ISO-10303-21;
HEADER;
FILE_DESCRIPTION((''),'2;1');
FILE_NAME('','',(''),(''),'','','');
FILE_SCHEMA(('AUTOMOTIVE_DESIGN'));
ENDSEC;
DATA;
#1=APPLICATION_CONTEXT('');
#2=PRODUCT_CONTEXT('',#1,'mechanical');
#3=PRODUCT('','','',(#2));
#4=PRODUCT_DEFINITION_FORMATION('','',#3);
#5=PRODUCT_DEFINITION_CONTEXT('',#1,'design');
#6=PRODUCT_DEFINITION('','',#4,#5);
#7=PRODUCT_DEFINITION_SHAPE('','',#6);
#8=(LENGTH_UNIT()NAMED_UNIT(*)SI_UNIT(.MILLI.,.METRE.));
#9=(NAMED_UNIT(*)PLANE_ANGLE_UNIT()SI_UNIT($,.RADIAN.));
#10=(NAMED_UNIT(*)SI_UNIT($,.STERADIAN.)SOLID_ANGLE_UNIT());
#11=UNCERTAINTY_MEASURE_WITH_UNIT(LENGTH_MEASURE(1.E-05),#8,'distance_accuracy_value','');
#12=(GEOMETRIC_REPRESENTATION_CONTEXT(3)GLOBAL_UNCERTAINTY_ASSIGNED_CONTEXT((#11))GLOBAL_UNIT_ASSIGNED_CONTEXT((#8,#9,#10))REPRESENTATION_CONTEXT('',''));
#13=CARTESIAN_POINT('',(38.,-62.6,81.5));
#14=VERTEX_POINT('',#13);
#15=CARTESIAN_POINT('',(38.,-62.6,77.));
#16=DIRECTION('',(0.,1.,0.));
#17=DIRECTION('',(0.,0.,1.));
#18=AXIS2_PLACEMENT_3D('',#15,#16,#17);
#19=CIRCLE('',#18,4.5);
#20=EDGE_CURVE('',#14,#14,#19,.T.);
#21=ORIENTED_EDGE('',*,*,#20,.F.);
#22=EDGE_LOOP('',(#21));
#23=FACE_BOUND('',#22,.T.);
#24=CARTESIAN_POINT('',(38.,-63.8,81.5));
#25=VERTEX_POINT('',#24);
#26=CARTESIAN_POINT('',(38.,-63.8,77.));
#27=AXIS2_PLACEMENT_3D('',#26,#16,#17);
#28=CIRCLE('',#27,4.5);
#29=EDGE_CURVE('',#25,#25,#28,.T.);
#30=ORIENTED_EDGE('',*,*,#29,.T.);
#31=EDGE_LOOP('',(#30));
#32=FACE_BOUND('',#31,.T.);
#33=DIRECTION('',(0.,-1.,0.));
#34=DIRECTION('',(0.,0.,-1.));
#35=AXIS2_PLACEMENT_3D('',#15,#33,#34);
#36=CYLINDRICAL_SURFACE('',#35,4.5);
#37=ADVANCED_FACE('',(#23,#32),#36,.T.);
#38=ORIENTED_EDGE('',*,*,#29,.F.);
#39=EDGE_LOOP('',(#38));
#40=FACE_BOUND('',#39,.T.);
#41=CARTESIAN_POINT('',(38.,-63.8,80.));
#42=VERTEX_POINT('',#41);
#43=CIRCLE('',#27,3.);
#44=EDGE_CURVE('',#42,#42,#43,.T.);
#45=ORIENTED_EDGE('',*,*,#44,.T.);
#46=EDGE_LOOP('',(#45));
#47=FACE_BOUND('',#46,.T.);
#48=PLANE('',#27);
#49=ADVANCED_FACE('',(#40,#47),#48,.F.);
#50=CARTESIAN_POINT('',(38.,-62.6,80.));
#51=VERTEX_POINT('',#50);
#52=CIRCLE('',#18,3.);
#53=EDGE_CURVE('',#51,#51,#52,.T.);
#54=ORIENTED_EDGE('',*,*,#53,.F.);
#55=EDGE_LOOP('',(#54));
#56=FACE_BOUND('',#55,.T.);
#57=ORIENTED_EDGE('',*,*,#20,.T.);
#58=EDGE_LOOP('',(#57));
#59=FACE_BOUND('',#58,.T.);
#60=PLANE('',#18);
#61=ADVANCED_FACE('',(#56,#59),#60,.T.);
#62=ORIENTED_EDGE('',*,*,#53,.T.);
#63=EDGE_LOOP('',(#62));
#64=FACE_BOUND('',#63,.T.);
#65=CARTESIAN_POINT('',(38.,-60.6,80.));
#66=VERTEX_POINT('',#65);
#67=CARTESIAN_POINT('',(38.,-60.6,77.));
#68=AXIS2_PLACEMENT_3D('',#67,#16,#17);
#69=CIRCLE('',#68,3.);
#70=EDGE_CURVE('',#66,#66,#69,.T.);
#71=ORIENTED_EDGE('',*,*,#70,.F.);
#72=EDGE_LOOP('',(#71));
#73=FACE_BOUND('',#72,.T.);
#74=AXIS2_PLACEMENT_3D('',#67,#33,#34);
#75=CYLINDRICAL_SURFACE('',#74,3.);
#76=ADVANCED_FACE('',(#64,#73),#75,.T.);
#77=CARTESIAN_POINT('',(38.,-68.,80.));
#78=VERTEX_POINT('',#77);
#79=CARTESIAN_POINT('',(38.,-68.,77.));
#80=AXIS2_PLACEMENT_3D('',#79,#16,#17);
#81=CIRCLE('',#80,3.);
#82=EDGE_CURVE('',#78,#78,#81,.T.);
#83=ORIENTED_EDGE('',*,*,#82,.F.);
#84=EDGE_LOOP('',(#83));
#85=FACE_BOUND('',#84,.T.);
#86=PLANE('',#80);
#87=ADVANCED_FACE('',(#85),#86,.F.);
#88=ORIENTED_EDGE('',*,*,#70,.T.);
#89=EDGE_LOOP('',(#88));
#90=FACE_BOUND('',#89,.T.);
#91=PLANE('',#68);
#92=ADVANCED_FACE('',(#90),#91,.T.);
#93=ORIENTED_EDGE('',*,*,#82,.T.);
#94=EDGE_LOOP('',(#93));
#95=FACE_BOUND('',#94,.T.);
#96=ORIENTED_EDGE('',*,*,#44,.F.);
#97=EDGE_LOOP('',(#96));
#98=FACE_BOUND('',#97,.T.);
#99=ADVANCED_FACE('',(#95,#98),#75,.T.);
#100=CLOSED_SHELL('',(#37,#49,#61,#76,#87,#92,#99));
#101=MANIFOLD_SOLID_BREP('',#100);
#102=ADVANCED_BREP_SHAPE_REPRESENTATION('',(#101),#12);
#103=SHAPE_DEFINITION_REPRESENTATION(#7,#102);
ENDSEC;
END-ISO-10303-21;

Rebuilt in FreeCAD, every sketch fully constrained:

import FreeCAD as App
import Part
import Sketcher

doc = App.newDocument("Part")
body = doc.addObject("PartDesign::Body", "Body")

# Sketch on XZ plane
sketch1 = body.newObject("Sketcher::SketchObject", "Sketch")
sketch1.AttachmentSupport = (doc.getObject("XZ_Plane"), [""])
sketch1.MapMode = "FlatFace"
sketch1.AttachmentOffset = App.Placement(App.Vector(0, 0, 68), App.Rotation())
sketch1.addGeometry(Part.Circle(App.Vector(38, 77, 0), App.Vector(0, 0, 1), 3), False)
sketch1.addConstraint(Sketcher.Constraint("Diameter", 0, 6.0))
sketch1.addConstraint(Sketcher.Constraint("DistanceX", -1, 1, 0, 3, 38.0))
sketch1.addConstraint(Sketcher.Constraint("DistanceY", -1, 1, 0, 3, 77.0))
pad1 = body.newObject("PartDesign::Pad", "Pad")
pad1.Profile = sketch1
pad1.Length = 7.4
pad1.Reversed = True

# Sketch on XZ plane
sketch2 = body.newObject("Sketcher::SketchObject", "Sketch001")
sketch2.AttachmentSupport = (doc.getObject("XZ_Plane"), [""])
sketch2.MapMode = "FlatFace"
sketch2.AttachmentOffset = App.Placement(App.Vector(0, 0, 63.8), App.Rotation())
sketch2.addGeometry(Part.Circle(App.Vector(38, 77, 0), App.Vector(0, 0, 1), 4.5), False)
sketch2.addConstraint(Sketcher.Constraint("Diameter", 0, 9.0))
sketch2.addConstraint(Sketcher.Constraint("DistanceX", -1, 1, 0, 3, 38.0))
sketch2.addConstraint(Sketcher.Constraint("DistanceY", -1, 1, 0, 3, 77.0))
pad2 = body.newObject("PartDesign::Pad", "Pad001")
pad2.Profile = sketch2
pad2.Length = 1.2
pad2.Reversed = True

doc.recompute()
